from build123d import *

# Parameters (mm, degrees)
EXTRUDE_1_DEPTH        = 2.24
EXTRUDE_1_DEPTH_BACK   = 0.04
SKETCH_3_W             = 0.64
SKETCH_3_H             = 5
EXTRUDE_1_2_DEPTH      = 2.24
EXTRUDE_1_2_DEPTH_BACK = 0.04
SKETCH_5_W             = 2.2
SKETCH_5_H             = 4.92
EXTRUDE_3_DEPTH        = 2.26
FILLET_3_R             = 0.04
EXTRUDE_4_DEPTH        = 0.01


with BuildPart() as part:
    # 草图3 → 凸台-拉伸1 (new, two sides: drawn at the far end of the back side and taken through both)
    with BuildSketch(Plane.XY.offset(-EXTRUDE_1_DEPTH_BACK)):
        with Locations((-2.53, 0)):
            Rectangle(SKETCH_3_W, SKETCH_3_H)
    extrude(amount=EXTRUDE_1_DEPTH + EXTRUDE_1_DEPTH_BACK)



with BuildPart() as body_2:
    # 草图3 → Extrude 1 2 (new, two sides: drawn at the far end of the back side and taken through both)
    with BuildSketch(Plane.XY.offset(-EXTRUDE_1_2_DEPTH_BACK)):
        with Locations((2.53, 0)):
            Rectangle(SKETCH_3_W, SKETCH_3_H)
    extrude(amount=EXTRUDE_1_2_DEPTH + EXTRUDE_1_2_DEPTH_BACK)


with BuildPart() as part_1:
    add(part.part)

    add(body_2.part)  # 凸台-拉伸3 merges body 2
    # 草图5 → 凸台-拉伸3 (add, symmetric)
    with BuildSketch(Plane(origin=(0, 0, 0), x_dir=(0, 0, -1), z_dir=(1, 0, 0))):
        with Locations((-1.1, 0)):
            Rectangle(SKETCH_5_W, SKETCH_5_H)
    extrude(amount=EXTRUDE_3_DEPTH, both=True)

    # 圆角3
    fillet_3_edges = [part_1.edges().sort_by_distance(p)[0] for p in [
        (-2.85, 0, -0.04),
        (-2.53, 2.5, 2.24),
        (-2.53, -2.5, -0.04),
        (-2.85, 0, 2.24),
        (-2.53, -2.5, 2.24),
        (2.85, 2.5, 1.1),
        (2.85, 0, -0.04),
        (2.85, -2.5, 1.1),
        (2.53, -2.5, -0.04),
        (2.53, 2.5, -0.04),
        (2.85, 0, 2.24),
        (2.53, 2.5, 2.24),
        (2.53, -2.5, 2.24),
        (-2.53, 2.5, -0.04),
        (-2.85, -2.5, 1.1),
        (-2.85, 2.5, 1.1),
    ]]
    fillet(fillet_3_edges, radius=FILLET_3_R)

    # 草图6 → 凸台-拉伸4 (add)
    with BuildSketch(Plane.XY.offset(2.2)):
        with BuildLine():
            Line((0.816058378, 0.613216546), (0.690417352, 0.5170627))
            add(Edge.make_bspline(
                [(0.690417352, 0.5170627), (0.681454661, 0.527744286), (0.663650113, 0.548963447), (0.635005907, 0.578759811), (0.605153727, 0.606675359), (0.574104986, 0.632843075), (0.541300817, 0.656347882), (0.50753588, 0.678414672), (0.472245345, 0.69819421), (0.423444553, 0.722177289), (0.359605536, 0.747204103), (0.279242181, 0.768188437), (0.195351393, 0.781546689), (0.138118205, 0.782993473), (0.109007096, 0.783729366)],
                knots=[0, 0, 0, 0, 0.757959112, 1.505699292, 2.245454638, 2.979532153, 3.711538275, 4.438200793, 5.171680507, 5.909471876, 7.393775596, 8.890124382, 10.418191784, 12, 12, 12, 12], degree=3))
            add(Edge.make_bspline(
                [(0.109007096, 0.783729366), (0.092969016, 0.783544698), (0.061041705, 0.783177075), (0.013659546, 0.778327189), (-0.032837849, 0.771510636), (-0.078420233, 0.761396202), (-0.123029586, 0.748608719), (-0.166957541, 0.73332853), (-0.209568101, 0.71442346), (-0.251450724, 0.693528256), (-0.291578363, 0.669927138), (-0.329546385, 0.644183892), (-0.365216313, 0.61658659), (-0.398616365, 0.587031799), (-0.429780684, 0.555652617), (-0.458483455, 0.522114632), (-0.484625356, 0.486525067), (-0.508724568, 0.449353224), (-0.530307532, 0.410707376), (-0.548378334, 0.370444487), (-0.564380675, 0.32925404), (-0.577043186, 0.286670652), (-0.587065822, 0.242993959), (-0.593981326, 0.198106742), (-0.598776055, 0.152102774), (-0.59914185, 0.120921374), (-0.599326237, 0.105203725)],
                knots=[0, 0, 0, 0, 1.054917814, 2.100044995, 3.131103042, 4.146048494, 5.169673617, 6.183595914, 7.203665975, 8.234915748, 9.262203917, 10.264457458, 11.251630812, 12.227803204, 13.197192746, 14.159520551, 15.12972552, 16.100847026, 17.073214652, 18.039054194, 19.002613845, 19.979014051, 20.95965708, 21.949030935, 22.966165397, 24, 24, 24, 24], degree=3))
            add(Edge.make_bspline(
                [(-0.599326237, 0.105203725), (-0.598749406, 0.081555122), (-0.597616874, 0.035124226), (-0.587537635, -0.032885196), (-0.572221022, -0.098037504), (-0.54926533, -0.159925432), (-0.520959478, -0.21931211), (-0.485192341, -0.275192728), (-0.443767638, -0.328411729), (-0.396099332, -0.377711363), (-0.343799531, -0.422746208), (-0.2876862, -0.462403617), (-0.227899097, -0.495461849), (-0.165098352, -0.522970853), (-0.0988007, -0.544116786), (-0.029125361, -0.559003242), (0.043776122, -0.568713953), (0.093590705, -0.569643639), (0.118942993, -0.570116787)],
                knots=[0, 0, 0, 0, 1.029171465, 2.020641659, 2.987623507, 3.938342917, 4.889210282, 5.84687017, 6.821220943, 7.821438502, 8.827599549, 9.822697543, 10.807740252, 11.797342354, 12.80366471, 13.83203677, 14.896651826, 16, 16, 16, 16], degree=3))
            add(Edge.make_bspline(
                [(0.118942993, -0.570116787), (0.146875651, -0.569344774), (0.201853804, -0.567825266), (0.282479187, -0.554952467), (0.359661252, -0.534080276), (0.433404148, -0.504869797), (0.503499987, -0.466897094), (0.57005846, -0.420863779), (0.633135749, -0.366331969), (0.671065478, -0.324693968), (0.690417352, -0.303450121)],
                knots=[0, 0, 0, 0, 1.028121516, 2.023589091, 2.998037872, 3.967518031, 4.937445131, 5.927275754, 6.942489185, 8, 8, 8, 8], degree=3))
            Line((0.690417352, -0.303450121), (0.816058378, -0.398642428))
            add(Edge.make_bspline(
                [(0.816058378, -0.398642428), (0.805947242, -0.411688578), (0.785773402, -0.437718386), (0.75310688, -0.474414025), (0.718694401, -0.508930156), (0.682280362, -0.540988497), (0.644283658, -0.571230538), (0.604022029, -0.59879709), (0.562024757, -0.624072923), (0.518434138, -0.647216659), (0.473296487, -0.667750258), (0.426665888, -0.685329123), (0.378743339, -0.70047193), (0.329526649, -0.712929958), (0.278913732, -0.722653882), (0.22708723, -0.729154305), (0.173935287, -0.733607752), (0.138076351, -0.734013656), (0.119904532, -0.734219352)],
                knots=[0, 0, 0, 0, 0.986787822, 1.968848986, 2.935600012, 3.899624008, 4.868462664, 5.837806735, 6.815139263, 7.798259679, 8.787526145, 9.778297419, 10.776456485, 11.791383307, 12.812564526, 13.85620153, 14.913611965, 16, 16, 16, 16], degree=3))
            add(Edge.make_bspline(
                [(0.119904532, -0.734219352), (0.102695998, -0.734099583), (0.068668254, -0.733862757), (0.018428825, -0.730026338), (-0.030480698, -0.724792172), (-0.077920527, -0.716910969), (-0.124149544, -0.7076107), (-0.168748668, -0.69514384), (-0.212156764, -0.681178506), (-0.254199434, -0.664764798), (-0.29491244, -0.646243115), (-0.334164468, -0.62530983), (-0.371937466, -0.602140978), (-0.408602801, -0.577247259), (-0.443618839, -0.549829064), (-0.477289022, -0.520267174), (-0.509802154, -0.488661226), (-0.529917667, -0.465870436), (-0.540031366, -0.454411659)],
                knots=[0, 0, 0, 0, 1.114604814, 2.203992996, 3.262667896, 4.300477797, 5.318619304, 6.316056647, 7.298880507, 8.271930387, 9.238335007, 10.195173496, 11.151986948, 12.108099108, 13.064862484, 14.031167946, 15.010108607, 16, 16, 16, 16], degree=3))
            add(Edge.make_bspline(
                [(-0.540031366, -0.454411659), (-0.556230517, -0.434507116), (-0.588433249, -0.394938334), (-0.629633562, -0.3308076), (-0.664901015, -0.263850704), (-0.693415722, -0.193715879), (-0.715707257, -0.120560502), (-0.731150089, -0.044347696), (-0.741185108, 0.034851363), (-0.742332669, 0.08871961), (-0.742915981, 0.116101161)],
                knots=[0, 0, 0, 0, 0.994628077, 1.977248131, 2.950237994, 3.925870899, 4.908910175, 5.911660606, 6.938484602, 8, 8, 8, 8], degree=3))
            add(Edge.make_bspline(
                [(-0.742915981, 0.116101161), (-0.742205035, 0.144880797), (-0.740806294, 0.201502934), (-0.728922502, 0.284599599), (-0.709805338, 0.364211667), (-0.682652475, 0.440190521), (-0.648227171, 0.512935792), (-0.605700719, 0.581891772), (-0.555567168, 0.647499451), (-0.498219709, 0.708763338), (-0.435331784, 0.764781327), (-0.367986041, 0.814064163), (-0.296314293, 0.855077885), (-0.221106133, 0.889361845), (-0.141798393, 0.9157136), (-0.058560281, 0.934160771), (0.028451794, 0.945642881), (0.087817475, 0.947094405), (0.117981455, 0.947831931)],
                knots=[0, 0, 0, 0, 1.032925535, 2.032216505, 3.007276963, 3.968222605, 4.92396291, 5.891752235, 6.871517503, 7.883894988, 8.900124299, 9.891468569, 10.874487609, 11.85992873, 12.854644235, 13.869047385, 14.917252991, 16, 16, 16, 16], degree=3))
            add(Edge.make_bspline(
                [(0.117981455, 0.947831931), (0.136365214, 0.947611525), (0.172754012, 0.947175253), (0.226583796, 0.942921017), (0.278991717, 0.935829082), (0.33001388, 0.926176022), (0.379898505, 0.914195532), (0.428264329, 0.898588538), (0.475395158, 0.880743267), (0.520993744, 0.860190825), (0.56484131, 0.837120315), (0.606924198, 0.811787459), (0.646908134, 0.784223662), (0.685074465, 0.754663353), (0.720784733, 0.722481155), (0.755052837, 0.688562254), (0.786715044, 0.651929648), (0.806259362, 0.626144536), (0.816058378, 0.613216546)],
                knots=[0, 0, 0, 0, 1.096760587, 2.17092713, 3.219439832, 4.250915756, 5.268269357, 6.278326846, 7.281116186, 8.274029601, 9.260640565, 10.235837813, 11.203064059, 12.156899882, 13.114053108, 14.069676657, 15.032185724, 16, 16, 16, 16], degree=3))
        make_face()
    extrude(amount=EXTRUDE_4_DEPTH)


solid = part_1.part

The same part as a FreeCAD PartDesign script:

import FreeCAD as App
import Part
import Sketcher
Q = App.Units.Quantity


def edges_at(feature, points):
    """Names of the edges that pass closest to the given points."""
    edges = feature.Shape.Edges
    near = lambda p: min(range(len(edges)), key=lambda i: edges[i].distToShape(Part.Vertex(*p))[0])
    return sorted({f"Edge{near(p) + 1}" for p in points})

doc = App.newDocument("Part")
body = doc.addObject("PartDesign::Body", "Body")

# Sketch on XY plane
sketch1 = body.newObject("Sketcher::SketchObject", "Sketch")
sketch1.AttachmentSupport = (doc.getObject("XY_Plane"), [""])
sketch1.MapMode = "FlatFace"
sketch1.addGeometry([
    Part.LineSegment(App.Vector(-2.9, 2.5, 0), App.Vector(-2.9, -2.5, 0)),
    Part.LineSegment(App.Vector(-2.9, -2.5, 0), App.Vector(-2.2, -2.5, 0)),
    Part.LineSegment(App.Vector(-2.2, -2.5, 0), App.Vector(-2.2, 2.5, 0)),
    Part.LineSegment(App.Vector(-2.2, 2.5, 0), App.Vector(-2.9, 2.5, 0)),
], False)
sketch1.addConstraint([
    Sketcher.Constraint("Coincident", 0, 2, 1, 1),
    Sketcher.Constraint("Coincident", 1, 2, 2, 1),
    Sketcher.Constraint("Coincident", 2, 2, 3, 1),
    Sketcher.Constraint("Coincident", 3, 2, 0, 1),
    Sketcher.Constraint("Vertical", 0),
    Sketcher.Constraint("Horizontal", 1),
    Sketcher.Constraint("Vertical", 2),
    Sketcher.Constraint("Horizontal", 3),
    Sketcher.Constraint("DistanceY", 0, 2, 0, 1, Q("5 mm")),
    Sketcher.Constraint("DistanceX", 1, 1, 1, 2, Q("0.64 mm")),
    Sketcher.Constraint("DistanceY", 0, 2, -1, 1, Q("2.5 mm")),
    Sketcher.Constraint("DistanceX", 0, 2, -1, 1, Q("2.85 mm")),
])
pad1 = body.newObject("PartDesign::Pad", "Pad")
pad1.Profile = sketch1
pad1.Type = "TwoLengths"
pad1.Length = 2.24
pad1.Length2 = 0.04
body2 = doc.addObject("PartDesign::Body", "Body001")

# Sketch on XY plane
sketch2 = body2.newObject("Sketcher::SketchObject", "Sketch001")
sketch2.AttachmentSupport = (doc.getObject("XY_Plane001"), [""])
sketch2.MapMode = "FlatFace"
sketch2.addGeometry([
    Part.LineSegment(App.Vector(2.2, 2.5, 0), App.Vector(2.2, -2.5, 0)),
    Part.LineSegment(App.Vector(2.2, -2.5, 0), App.Vector(2.9, -2.5, 0)),
    Part.LineSegment(App.Vector(2.9, -2.5, 0), App.Vector(2.9, 2.5, 0)),
    Part.LineSegment(App.Vector(2.9, 2.5, 0), App.Vector(2.2, 2.5, 0)),
], False)
sketch2.addConstraint([
    Sketcher.Constraint("Coincident", 0, 2, 1, 1),
    Sketcher.Constraint("Coincident", 1, 2, 2, 1),
    Sketcher.Constraint("Coincident", 2, 2, 3, 1),
    Sketcher.Constraint("Coincident", 3, 2, 0, 1),
    Sketcher.Constraint("Vertical", 0),
    Sketcher.Constraint("Horizontal", 1),
    Sketcher.Constraint("Vertical", 2),
    Sketcher.Constraint("Horizontal", 3),
    Sketcher.Constraint("DistanceY", 0, 2, 0, 1, Q("5 mm")),
    Sketcher.Constraint("DistanceX", 1, 1, 1, 2, Q("0.64 mm")),
    Sketcher.Constraint("DistanceY", 0, 2, -1, 1, Q("2.5 mm")),
    Sketcher.Constraint("DistanceX", -1, 1, 0, 2, Q("2.21 mm")),
])
pad2 = body2.newObject("PartDesign::Pad", "Pad001")
pad2.Profile = sketch2
pad2.Type = "TwoLengths"
pad2.Length = 2.24
pad2.Length2 = 0.04
body.AllowCompound = True
doc.recompute()

boolean = body.newObject("PartDesign::Boolean", "Boolean")
boolean.Type = "Fuse"
boolean.addObjects([body2])

# Sketch on YZ plane
sketch3 = body.newObject("Sketcher::SketchObject", "Sketch002")
sketch3.AttachmentSupport = (doc.getObject("YZ_Plane"), [""])
sketch3.MapMode = "FlatFace"
sketch3.addGeometry([
    Part.LineSegment(App.Vector(2.5, 2.2, 0), App.Vector(-2.5, 2.2, 0)),
    Part.LineSegment(App.Vector(-2.5, 2.2, 0), App.Vector(-2.5, 0, 0)),
    Part.LineSegment(App.Vector(-2.5, 0, 0), App.Vector(2.5, 0, 0)),
    Part.LineSegment(App.Vector(2.5, 0, 0), App.Vector(2.5, 2.2, 0)),
], False)
sketch3.addConstraint([
    Sketcher.Constraint("Coincident", 0, 2, 1, 1),
    Sketcher.Constraint("Coincident", 1, 2, 2, 1),
    Sketcher.Constraint("Coincident", 2, 2, 3, 1),
    Sketcher.Constraint("Coincident", 3, 2, 0, 1),
    Sketcher.Constraint("Horizontal", 0),
    Sketcher.Constraint("Vertical", 1),
    Sketcher.Constraint("Horizontal", 2),
    Sketcher.Constraint("Vertical", 3),
    Sketcher.Constraint("Symmetric", 1, 2, 2, 2, -1, 1),
    Sketcher.Constraint("DistanceY", 1, 2, 1, 1, Q("2.2 mm")),
    Sketcher.Constraint("DistanceX", 0, 2, 0, 1, Q("4.92 mm")),
])
pad3 = body.newObject("PartDesign::Pad", "Pad002")
pad3.Profile = sketch3
pad3.Length = 4.52
pad3.Midplane = True
doc.recompute()

fillet = body.newObject("PartDesign::Fillet", "Fillet")
fillet.Base = (pad3, edges_at(pad3, [
    (-2.85, 0, -0.04),
    (-2.53, 2.5, 2.24),
    (-2.53, -2.5, -0.04),
    (-2.85, 0, 2.24),
    (-2.53, -2.5, 2.24),
    (2.85, 2.5, 1.1),
    (2.85, 0, -0.04),
    (2.85, -2.5, 1.1),
    (2.53, -2.5, -0.04),
    (2.53, 2.5, -0.04),
    (2.85, 0, 2.24),
    (2.53, 2.5, 2.24),
    (2.53, -2.5, 2.24),
    (-2.53, 2.5, -0.04),
    (-2.85, -2.5, 1.1),
    (-2.85, 2.5, 1.1),
]))
fillet.Radius = 0.04

# Sketch on XY plane
sketch4 = body.newObject("Sketcher::SketchObject", "Sketch003")
sketch4.AttachmentSupport = (doc.getObject("XY_Plane"), [""])
sketch4.MapMode = "FlatFace"
sketch4.AttachmentOffset = App.Placement(App.Vector(0, 0, 2.2), App.Rotation())
sketch4.addGeometry([
    Part.LineSegment(App.Vector(0.690417, 0.517063, 0), App.Vector(0.816058, 0.613217, 0)),  # 0
    Part.BSplineCurve([App.Vector(0.117981, 0.947832, 0), App.Vector(0.136365, 0.947612, 0), App.Vector(0.172754, 0.947175, 0), App.Vector(0.226584, 0.942921, 0), App.Vector(0.278992, 0.935829, 0), App.Vector(0.330014, 0.926176, 0), App.Vector(0.379899, 0.914196, 0), App.Vector(0.428264, 0.898589, 0), App.Vector(0.475395, 0.880743, 0), App.Vector(0.520994, 0.860191, 0), App.Vector(0.564841, 0.83712, 0), App.Vector(0.606924, 0.811787, 0), App.Vector(0.646908, 0.784224, 0), App.Vector(0.685074, 0.754663, 0), App.Vector(0.720785, 0.722481, 0), App.Vector(0.755053, 0.688562, 0), App.Vector(0.786715, 0.65193, 0), App.Vector(0.806259, 0.626145, 0), App.Vector(0.816058, 0.613217, 0)], [4, 1, 1, 1, 1, 1, 1, 1, 1, 1, 1, 1, 1, 1, 1, 1, 4], [0, 1.096760587, 2.17092713, 3.219439832, 4.250915756, 5.268269357, 6.278326846, 7.281116186, 8.274029601, 9.260640565, 10.235837813, 11.203064059, 12.156899882, 13.114053108, 14.069676657, 15.032185724, 16], False, 3, [1, 1, 1, 1, 1, 1, 1, 1, 1, 1, 1, 1, 1, 1, 1, 1, 1, 1, 1], False),  # 1
    Part.BSplineCurve([App.Vector(-0.742916, 0.116101, 0), App.Vector(-0.742205, 0.144881, 0), App.Vector(-0.740806, 0.201503, 0), App.Vector(-0.728923, 0.2846, 0), App.Vector(-0.709805, 0.364212, 0), App.Vector(-0.682652, 0.440191, 0), App.Vector(-0.648227, 0.512936, 0), App.Vector(-0.605701, 0.581892, 0), App.Vector(-0.555567, 0.647499, 0), App.Vector(-0.49822, 0.708763, 0), App.Vector(-0.435332, 0.764781, 0), App.Vector(-0.367986, 0.814064, 0), App.Vector(-0.296314, 0.855078, 0), App.Vector(-0.221106, 0.889362, 0), App.Vector(-0.141798, 0.915714, 0), App.Vector(-0.05856, 0.934161, 0), App.Vector(0.028452, 0.945643, 0), App.Vector(0.087817, 0.947094, 0), App.Vector(0.117981, 0.947832, 0)], [4, 1, 1, 1, 1, 1, 1, 1, 1, 1, 1, 1, 1, 1, 1, 1, 4], [0, 1.032925535, 2.032216505, 3.007276963, 3.968222605, 4.92396291, 5.891752235, 6.871517503, 7.883894988, 8.900124299, 9.891468569, 10.874487609, 11.85992873, 12.854644235, 13.869047385, 14.917252991, 16], False, 3, [1, 1, 1, 1, 1, 1, 1, 1, 1, 1, 1, 1, 1, 1, 1, 1, 1, 1, 1], False),  # 2
    Part.BSplineCurve([App.Vector(-0.540031, -0.454412, 0), App.Vector(-0.556231, -0.434507, 0), App.Vector(-0.588433, -0.394938, 0), App.Vector(-0.629634, -0.330808, 0), App.Vector(-0.664901, -0.263851, 0), App.Vector(-0.693416, -0.193716, 0), App.Vector(-0.715707, -0.120561, 0), App.Vector(-0.73115, -0.044348, 0), App.Vector(-0.741185, 0.034851, 0), App.Vector(-0.742333, 0.08872, 0), App.Vector(-0.742916, 0.116101, 0)], [4, 1, 1, 1, 1, 1, 1, 1, 4], [0, 0.994628077, 1.977248131, 2.950237994, 3.925870899, 4.908910175, 5.911660606, 6.938484602, 8], False, 3, [1, 1, 1, 1, 1, 1, 1, 1, 1, 1, 1], False),  # 3
    Part.BSplineCurve([App.Vector(0.119905, -0.734219, 0), App.Vector(0.102696, -0.7341, 0), App.Vector(0.068668, -0.733863, 0), App.Vector(0.018429, -0.730026, 0), App.Vector(-0.030481, -0.724792, 0), App.Vector(-0.077921, -0.716911, 0), App.Vector(-0.12415, -0.707611, 0), App.Vector(-0.168749, -0.695144, 0), App.Vector(-0.212157, -0.681179, 0), App.Vector(-0.254199, -0.664765, 0), App.Vector(-0.294912, -0.646243, 0), App.Vector(-0.334164, -0.62531, 0), App.Vector(-0.371937, -0.602141, 0), App.Vector(-0.408603, -0.577247, 0), App.Vector(-0.443619, -0.549829, 0), App.Vector(-0.477289, -0.520267, 0), App.Vector(-0.509802, -0.488661, 0), App.Vector(-0.529918, -0.46587, 0), App.Vector(-0.540031, -0.454412, 0)], [4, 1, 1, 1, 1, 1, 1, 1, 1, 1, 1, 1, 1, 1, 1, 1, 4], [0, 1.114604814, 2.203992996, 3.262667896, 4.300477797, 5.318619304, 6.316056647, 7.298880507, 8.271930387, 9.238335007, 10.195173496, 11.151986948, 12.108099108, 13.064862484, 14.031167946, 15.010108607, 16], False, 3, [1, 1, 1, 1, 1, 1, 1, 1, 1, 1, 1, 1, 1, 1, 1, 1, 1, 1, 1], False),  # 4
    Part.BSplineCurve([App.Vector(0.816058, -0.398642, 0), App.Vector(0.805947, -0.411689, 0), App.Vector(0.785773, -0.437718, 0), App.Vector(0.753107, -0.474414, 0), App.Vector(0.718694, -0.50893, 0), App.Vector(0.68228, -0.540988, 0), App.Vector(0.644284, -0.571231, 0), App.Vector(0.604022, -0.598797, 0), App.Vector(0.562025, -0.624073, 0), App.Vector(0.518434, -0.647217, 0), App.Vector(0.473296, -0.66775, 0), App.Vector(0.426666, -0.685329, 0), App.Vector(0.378743, -0.700472, 0), App.Vector(0.329527, -0.71293, 0), App.Vector(0.278914, -0.722654, 0), App.Vector(0.227087, -0.729154, 0), App.Vector(0.173935, -0.733608, 0), App.Vector(0.138076, -0.734014, 0), App.Vector(0.119905, -0.734219, 0)], [4, 1, 1, 1, 1, 1, 1, 1, 1, 1, 1, 1, 1, 1, 1, 1, 4], [0, 0.986787822, 1.968848986, 2.935600012, 3.899624008, 4.868462664, 5.837806735, 6.815139263, 7.798259679, 8.787526145, 9.778297419, 10.776456485, 11.791383307, 12.812564526, 13.85620153, 14.913611965, 16], False, 3, [1, 1, 1, 1, 1, 1, 1, 1, 1, 1, 1, 1, 1, 1, 1, 1, 1, 1, 1], False),  # 5
    Part.LineSegment(App.Vector(0.816058, -0.398642, 0), App.Vector(0.690417, -0.30345, 0)),  # 6
    Part.BSplineCurve([App.Vector(0.118943, -0.570117, 0), App.Vector(0.146876, -0.569345, 0), App.Vector(0.201854, -0.567825, 0), App.Vector(0.282479, -0.554952, 0), App.Vector(0.359661, -0.53408, 0), App.Vector(0.433404, -0.50487, 0), App.Vector(0.5035, -0.466897, 0), App.Vector(0.570058, -0.420864, 0), App.Vector(0.633136, -0.366332, 0), App.Vector(0.671065, -0.324694, 0), App.Vector(0.690417, -0.30345, 0)], [4, 1, 1, 1, 1, 1, 1, 1, 4], [0, 1.028121516, 2.023589091, 2.998037872, 3.967518031, 4.937445131, 5.927275754, 6.942489185, 8], False, 3, [1, 1, 1, 1, 1, 1, 1, 1, 1, 1, 1], False),  # 7
    Part.BSplineCurve([App.Vector(-0.599326, 0.105204, 0), App.Vector(-0.598749, 0.081555, 0), App.Vector(-0.597617, 0.035124, 0), App.Vector(-0.587538, -0.032885, 0), App.Vector(-0.572221, -0.098038, 0), App.Vector(-0.549265, -0.159925, 0), App.Vector(-0.520959, -0.219312, 0), App.Vector(-0.485192, -0.275193, 0), App.Vector(-0.443768, -0.328412, 0), App.Vector(-0.396099, -0.377711, 0), App.Vector(-0.3438, -0.422746, 0), App.Vector(-0.287686, -0.462404, 0), App.Vector(-0.227899, -0.495462, 0), App.Vector(-0.165098, -0.522971, 0), App.Vector(-0.098801, -0.544117, 0), App.Vector(-0.029125, -0.559003, 0), App.Vector(0.043776, -0.568714, 0), App.Vector(0.093591, -0.569644, 0), App.Vector(0.118943, -0.570117, 0)], [4, 1, 1, 1, 1, 1, 1, 1, 1, 1, 1, 1, 1, 1, 1, 1, 4], [0, 1.029171465, 2.020641659, 2.987623507, 3.938342917, 4.889210282, 5.84687017, 6.821220943, 7.821438502, 8.827599549, 9.822697543, 10.807740252, 11.797342354, 12.80366471, 13.83203677, 14.896651826, 16], False, 3, [1, 1, 1, 1, 1, 1, 1, 1, 1, 1, 1, 1, 1, 1, 1, 1, 1, 1, 1], False),  # 8
    Part.BSplineCurve([App.Vector(0.109007, 0.783729, 0), App.Vector(0.092969, 0.783545, 0), App.Vector(0.061042, 0.783177, 0), App.Vector(0.01366, 0.778327, 0), App.Vector(-0.032838, 0.771511, 0), App.Vector(-0.07842, 0.761396, 0), App.Vector(-0.12303, 0.748609, 0), App.Vector(-0.166958, 0.733329, 0), App.Vector(-0.209568, 0.714423, 0), App.Vector(-0.251451, 0.693528, 0), App.Vector(-0.291578, 0.669927, 0), App.Vector(-0.329546, 0.644184, 0), App.Vector(-0.365216, 0.616587, 0), App.Vector(-0.398616, 0.587032, 0), App.Vector(-0.429781, 0.555653, 0), App.Vector(-0.458483, 0.522115, 0), App.Vector(-0.484625, 0.486525, 0), App.Vector(-0.508725, 0.449353, 0), App.Vector(-0.530308, 0.410707, 0), App.Vector(-0.548378, 0.370444, 0), App.Vector(-0.564381, 0.329254, 0), App.Vector(-0.577043, 0.286671, 0), App.Vector(-0.587066, 0.242994, 0), App.Vector(-0.593981, 0.198107, 0), App.Vector(-0.598776, 0.152103, 0), App.Vector(-0.599142, 0.120921, 0), App.Vector(-0.599326, 0.105204, 0)], [4, 1, 1, 1, 1, 1, 1, 1, 1, 1, 1, 1, 1, 1, 1, 1, 1, 1, 1, 1, 1, 1, 1, 1, 4], [0, 1.054917814, 2.100044995, 3.131103042, 4.146048494, 5.169673617, 6.183595914, 7.203665975, 8.234915748, 9.262203917, 10.264457458, 11.251630812, 12.227803204, 13.197192746, 14.159520551, 15.12972552, 16.100847026, 17.073214652, 18.039054194, 19.002613845, 19.979014051, 20.95965708, 21.949030935, 22.966165397, 24], False, 3, [1, 1, 1, 1, 1, 1, 1, 1, 1, 1, 1, 1, 1, 1, 1, 1, 1, 1, 1, 1, 1, 1, 1, 1, 1, 1, 1], False),  # 9
    Part.BSplineCurve([App.Vector(0.690417, 0.517063, 0), App.Vector(0.681455, 0.527744, 0), App.Vector(0.66365, 0.548963, 0), App.Vector(0.635006, 0.57876, 0), App.Vector(0.605154, 0.606675, 0), App.Vector(0.574105, 0.632843, 0), App.Vector(0.541301, 0.656348, 0), App.Vector(0.507536, 0.678415, 0), App.Vector(0.472245, 0.698194, 0), App.Vector(0.423445, 0.722177, 0), App.Vector(0.359606, 0.747204, 0), App.Vector(0.279242, 0.768188, 0), App.Vector(0.195351, 0.781547, 0), App.Vector(0.138118, 0.782993, 0), App.Vector(0.109007, 0.783729, 0)], [4, 1, 1, 1, 1, 1, 1, 1, 1, 1, 1, 1, 4], [0, 0.757959112, 1.505699292, 2.245454638, 2.979532153, 3.711538275, 4.438200793, 5.171680507, 5.909471876, 7.393775596, 8.890124382, 10.418191784, 12], False, 3, [1, 1, 1, 1, 1, 1, 1, 1, 1, 1, 1, 1, 1, 1, 1], False),  # 10
], False)
sketch4.addConstraint([
    Sketcher.Constraint("Block", 1),
    Sketcher.Constraint("Block", 2),
    Sketcher.Constraint("Block", 3),
    Sketcher.Constraint("Block", 4),
    Sketcher.Constraint("Block", 5),
    Sketcher.Constraint("Block", 7),
    Sketcher.Constraint("Block", 8),
    Sketcher.Constraint("Block", 9),
    Sketcher.Constraint("Block", 10),
    Sketcher.Constraint("Coincident", 0, 2, 1, 2),
    Sketcher.Constraint("Coincident", 5, 1, 6, 1),
    Sketcher.Constraint("Coincident", 6, 2, 7, 2),
    Sketcher.Constraint("Coincident", 10, 1, 0, 1),
])
pad4 = body.newObject("PartDesign::Pad", "Pad003")
pad4.Profile = sketch4
pad4.Length = 0.01

doc.recompute()
